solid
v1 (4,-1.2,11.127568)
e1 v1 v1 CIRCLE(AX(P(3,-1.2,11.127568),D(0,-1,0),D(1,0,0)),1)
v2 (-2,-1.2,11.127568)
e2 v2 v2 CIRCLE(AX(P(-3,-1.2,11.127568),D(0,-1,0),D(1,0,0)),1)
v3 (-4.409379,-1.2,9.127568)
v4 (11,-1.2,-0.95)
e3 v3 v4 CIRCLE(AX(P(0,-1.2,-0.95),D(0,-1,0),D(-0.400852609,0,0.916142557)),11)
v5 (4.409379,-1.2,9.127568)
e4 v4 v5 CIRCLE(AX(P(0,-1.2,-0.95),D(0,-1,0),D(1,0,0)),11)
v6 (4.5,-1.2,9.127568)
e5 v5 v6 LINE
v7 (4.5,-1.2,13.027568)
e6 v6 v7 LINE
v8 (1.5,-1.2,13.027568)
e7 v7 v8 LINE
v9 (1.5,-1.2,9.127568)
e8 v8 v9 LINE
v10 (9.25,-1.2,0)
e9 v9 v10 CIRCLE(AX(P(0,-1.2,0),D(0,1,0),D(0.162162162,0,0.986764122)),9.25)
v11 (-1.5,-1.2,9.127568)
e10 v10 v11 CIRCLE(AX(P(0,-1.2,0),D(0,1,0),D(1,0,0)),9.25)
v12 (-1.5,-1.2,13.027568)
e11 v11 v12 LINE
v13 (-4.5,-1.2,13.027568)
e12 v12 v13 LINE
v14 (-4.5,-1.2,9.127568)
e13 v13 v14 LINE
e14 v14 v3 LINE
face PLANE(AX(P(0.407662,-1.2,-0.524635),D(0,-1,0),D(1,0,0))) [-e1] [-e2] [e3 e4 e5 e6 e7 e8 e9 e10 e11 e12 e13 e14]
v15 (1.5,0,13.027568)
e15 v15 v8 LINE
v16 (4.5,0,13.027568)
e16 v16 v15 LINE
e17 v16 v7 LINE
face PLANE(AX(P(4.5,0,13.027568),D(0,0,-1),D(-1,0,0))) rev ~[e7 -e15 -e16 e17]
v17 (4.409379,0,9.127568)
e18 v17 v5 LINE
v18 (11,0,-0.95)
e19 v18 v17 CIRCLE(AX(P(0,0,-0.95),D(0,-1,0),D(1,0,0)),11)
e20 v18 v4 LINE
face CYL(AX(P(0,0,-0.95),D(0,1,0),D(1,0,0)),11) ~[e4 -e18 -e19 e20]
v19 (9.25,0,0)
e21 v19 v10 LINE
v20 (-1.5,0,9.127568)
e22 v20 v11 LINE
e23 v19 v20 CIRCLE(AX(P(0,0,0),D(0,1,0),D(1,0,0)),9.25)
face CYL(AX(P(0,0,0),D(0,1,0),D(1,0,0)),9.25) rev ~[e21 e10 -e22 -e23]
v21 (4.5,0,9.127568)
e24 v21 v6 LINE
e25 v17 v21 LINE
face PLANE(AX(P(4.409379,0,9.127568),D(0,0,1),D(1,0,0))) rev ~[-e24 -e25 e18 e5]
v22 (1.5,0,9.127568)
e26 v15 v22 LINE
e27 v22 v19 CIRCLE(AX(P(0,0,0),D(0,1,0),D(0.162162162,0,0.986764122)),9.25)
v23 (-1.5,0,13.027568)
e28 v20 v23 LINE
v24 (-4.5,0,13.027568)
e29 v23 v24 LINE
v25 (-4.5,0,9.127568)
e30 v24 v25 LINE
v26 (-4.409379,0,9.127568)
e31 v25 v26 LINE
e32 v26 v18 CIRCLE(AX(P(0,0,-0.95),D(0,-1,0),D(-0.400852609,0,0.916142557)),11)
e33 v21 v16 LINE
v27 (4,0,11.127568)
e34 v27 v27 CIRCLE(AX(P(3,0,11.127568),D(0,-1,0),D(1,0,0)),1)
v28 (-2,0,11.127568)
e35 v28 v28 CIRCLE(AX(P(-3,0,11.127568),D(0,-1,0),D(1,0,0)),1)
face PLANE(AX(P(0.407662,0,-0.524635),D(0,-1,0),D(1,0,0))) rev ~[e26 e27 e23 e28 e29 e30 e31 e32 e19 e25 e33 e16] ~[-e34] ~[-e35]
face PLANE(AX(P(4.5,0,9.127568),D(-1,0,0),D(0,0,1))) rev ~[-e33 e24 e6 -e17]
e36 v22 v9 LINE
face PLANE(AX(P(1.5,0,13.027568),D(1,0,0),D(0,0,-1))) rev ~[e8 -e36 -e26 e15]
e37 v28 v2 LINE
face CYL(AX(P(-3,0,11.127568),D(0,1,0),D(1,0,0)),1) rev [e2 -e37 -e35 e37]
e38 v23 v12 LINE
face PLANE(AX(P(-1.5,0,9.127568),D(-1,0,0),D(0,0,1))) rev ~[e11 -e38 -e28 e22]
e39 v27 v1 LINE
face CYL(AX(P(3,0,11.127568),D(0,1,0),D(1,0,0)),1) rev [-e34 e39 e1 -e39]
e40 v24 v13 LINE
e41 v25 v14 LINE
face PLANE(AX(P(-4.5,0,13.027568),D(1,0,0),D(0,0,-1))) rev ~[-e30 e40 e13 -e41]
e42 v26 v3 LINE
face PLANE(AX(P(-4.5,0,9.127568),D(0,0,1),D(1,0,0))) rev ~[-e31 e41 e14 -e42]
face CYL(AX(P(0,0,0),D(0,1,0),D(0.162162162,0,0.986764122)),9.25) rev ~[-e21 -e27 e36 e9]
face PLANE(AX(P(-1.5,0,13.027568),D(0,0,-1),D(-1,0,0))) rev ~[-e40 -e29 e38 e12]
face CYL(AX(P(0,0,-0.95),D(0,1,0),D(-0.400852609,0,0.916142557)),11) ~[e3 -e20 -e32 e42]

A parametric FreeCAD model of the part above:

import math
import FreeCAD as App
import Part
import Sketcher

doc = App.newDocument("Part")
body = doc.addObject("PartDesign::Body", "Body")

# Sketch on XZ plane
sketch1 = body.newObject("Sketcher::SketchObject", "Sketch")
sketch1.AttachmentSupport = (doc.getObject("XZ_Plane"), [""])
sketch1.MapMode = "FlatFace"
sketch1.addGeometry([
    Part.ArcOfCircle(Part.Circle(App.Vector(0, 0, 0), App.Vector(0, 0, 1), 9.25), math.radians(0), math.radians(80.667582)),  # 0
    Part.ArcOfCircle(Part.Circle(App.Vector(0, 0, 0), App.Vector(0, 0, 1), 9.25), math.radians(99.332418), math.radians(360)),  # 1
    Part.LineSegment(App.Vector(-1.5, 9.127568, 0), App.Vector(-1.5, 13.027568, 0)),  # 2
    Part.LineSegment(App.Vector(-1.5, 13.027568, 0), App.Vector(-4.5, 13.027568, 0)),  # 3
    Part.LineSegment(App.Vector(-4.5, 13.027568, 0), App.Vector(-4.5, 9.127568, 0)),  # 4
    Part.LineSegment(App.Vector(-4.5, 9.127568, 0), App.Vector(-4.409379, 9.127568, 0)),  # 5
    Part.ArcOfCircle(Part.Circle(App.Vector(0, -0.95, 0), App.Vector(0, 0, 1), 11), math.radians(113.63149), math.radians(360)),  # 6
    Part.ArcOfCircle(Part.Circle(App.Vector(0, -0.95, 0), App.Vector(0, 0, 1), 11), math.radians(0), math.radians(66.36851)),  # 7
    Part.LineSegment(App.Vector(4.409379, 9.127568, 0), App.Vector(4.5, 9.127568, 0)),  # 8
    Part.LineSegment(App.Vector(4.5, 9.127568, 0), App.Vector(4.5, 13.027568, 0)),  # 9
    Part.LineSegment(App.Vector(4.5, 13.027568, 0), App.Vector(1.5, 13.027568, 0)),  # 10
    Part.LineSegment(App.Vector(1.5, 13.027568, 0), App.Vector(1.5, 9.127568, 0)),  # 11
    Part.Circle(App.Vector(-3, 11.127568, 0), App.Vector(0, 0, 1), 1),  # 12
    Part.Circle(App.Vector(3, 11.127568, 0), App.Vector(0, 0, 1), 1),  # 13
], False)
sketch1.addConstraint([
    Sketcher.Constraint("Tangent", 0, 1, 1, 2),
    Sketcher.Constraint("Coincident", 1, 1, 2, 1),
    Sketcher.Constraint("Coincident", 2, 2, 3, 1),
    Sketcher.Constraint("Coincident", 3, 2, 4, 1),
    Sketcher.Constraint("Coincident", 4, 2, 5, 1),
    Sketcher.Constraint("Coincident", 5, 2, 6, 1),
    Sketcher.Constraint("Tangent", 6, 2, 7, 1),
    Sketcher.Constraint("Coincident", 7, 2, 8, 1),
    Sketcher.Constraint("Coincident", 8, 2, 9, 1),
    Sketcher.Constraint("Coincident", 9, 2, 10, 1),
    Sketcher.Constraint("Coincident", 10, 2, 11, 1),
    Sketcher.Constraint("Coincident", 11, 2, 0, 2),
    Sketcher.Constraint("Vertical", 2),
    Sketcher.Constraint("Horizontal", 3),
    Sketcher.Constraint("Vertical", 4),
    Sketcher.Constraint("Horizontal", 5),
    Sketcher.Constraint("Horizontal", 8),
    Sketcher.Constraint("Vertical", 9),
    Sketcher.Constraint("Horizontal", 10),
    Sketcher.Constraint("Vertical", 11),
    Sketcher.Constraint("Coincident", 0, 3, -1, 1),
    Sketcher.Constraint("Equal", 0, 1),
    Sketcher.Constraint("Equal", 6, 7),
    Sketcher.Constraint("Equal", 12, 13),
    Sketcher.Constraint("Symmetric", 12, 3, 13, 3, -2),
    Sketcher.Constraint("Symmetric", 5, 2, 7, 2, -2),
    Sketcher.Constraint("Symmetric", 3, 2, 9, 2, -2),
    Sketcher.Constraint("PointOnObject", 0, 1, -1),
    Sketcher.Constraint("Horizontal", 1, 1, 4, 2),
    Sketcher.Constraint("Horizontal", 7, 3, 6, 2),
    Sketcher.Constraint("Horizontal", 8, 2, 11, 2),
    Sketcher.Constraint("Diameter", 12, 2.0),
    Sketcher.Constraint("Radius", 6, 11.0),
    Sketcher.Constraint("DistanceX", 3, 2, 3, 1, 3.0),
    Sketcher.Constraint("Radius", 0, 9.25),
    Sketcher.Constraint("DistanceY", 2, 1, 2, 2, 3.9),
    Sketcher.Constraint("DistanceX", 12, 3, -1, 1, 3.0),
    Sketcher.Constraint("DistanceY", 1, 1, 12, 3, 2.0),
    Sketcher.Constraint("DistanceX", 1, 1, 8, 2, 6.0),
    Sketcher.Constraint("DistanceY", 6, 3, -1, 1, 0.95),
])
pad1 = body.newObject("PartDesign::Pad", "Pad")
pad1.Profile = sketch1
pad1.Length = 1.2

doc.recompute()
